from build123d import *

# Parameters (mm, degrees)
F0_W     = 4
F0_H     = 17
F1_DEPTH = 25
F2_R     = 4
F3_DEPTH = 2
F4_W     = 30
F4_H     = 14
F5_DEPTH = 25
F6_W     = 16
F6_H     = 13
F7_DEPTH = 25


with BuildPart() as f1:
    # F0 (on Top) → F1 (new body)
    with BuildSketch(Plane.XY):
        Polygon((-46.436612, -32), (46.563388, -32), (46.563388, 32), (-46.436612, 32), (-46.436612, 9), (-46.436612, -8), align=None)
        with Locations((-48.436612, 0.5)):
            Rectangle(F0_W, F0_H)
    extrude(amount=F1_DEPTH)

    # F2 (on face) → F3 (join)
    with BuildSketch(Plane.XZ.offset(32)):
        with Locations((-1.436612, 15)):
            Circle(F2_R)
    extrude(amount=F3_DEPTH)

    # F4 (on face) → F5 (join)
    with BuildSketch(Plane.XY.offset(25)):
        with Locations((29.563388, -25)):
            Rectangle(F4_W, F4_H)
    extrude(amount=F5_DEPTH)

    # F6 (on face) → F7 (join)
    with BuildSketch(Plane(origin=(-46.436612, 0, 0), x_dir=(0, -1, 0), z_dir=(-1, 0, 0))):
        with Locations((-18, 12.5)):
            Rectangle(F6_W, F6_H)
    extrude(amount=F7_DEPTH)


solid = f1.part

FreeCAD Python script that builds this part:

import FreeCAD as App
import Part
import Sketcher
from FreeCAD import Vector

doc = App.newDocument("Part")
body = doc.addObject("PartDesign::Body", "Body")

# Sketch on XY plane
sketch1 = body.newObject("Sketcher::SketchObject", "Sketch")
sketch1.AttachmentSupport = (doc.getObject("XY_Plane"), [""])
sketch1.MapMode = "FlatFace"
sketch1.addGeometry(Part.LineSegment(Vector(-46.4, -32, 0), Vector(46.6, -32, 0)), False)
sketch1.addGeometry(Part.LineSegment(Vector(46.6, -32, 0), Vector(46.6, 32, 0)), False)
sketch1.addGeometry(Part.LineSegment(Vector(46.6, 32, 0), Vector(-46.4, 32, 0)), False)
sketch1.addGeometry(Part.LineSegment(Vector(-46.4, 32, 0), Vector(-46.4, 9, 0)), False)
sketch1.addGeometry(Part.LineSegment(Vector(-46.4, 9, 0), Vector(-50.4, 9, 0)), False)
sketch1.addGeometry(Part.LineSegment(Vector(-50.4, 9, 0), Vector(-50.4, -8, 0)), False)
sketch1.addGeometry(Part.LineSegment(Vector(-50.4, -8, 0), Vector(-46.4, -8, 0)), False)
sketch1.addGeometry(Part.LineSegment(Vector(-46.4, -8, 0), Vector(-46.4, -32, 0)), False)
sketch1.addConstraint(Sketcher.Constraint("Coincident", 0, 2, 1, 1))
sketch1.addConstraint(Sketcher.Constraint("Coincident", 1, 2, 2, 1))
sketch1.addConstraint(Sketcher.Constraint("Coincident", 2, 2, 3, 1))
sketch1.addConstraint(Sketcher.Constraint("Coincident", 3, 2, 4, 1))
sketch1.addConstraint(Sketcher.Constraint("Coincident", 4, 2, 5, 1))
sketch1.addConstraint(Sketcher.Constraint("Coincident", 5, 2, 6, 1))
sketch1.addConstraint(Sketcher.Constraint("Coincident", 6, 2, 7, 1))
sketch1.addConstraint(Sketcher.Constraint("Coincident", 7, 2, 0, 1))
sketch1.addConstraint(Sketcher.Constraint("Horizontal", 0))
sketch1.addConstraint(Sketcher.Constraint("Vertical", 1))
sketch1.addConstraint(Sketcher.Constraint("Horizontal", 2))
sketch1.addConstraint(Sketcher.Constraint("Vertical", 3))
sketch1.addConstraint(Sketcher.Constraint("Horizontal", 4))
sketch1.addConstraint(Sketcher.Constraint("Vertical", 5))
sketch1.addConstraint(Sketcher.Constraint("Horizontal", 6))
sketch1.addConstraint(Sketcher.Constraint("Vertical", 7))
sketch1.addConstraint(Sketcher.Constraint("Symmetric", 2, 2, 7, 2, -1))
sketch1.addConstraint(Sketcher.Constraint("DistanceX", 0, 1, 0, 2, 93.0))
sketch1.addConstraint(Sketcher.Constraint("DistanceX", 4, 2, 4, 1, 4.0))
sketch1.addConstraint(Sketcher.Constraint("DistanceY", 1, 1, 1, 2, 64.0))
sketch1.addConstraint(Sketcher.Constraint("DistanceY", 3, 2, 3, 1, 23.0))
sketch1.addConstraint(Sketcher.Constraint("DistanceY", 5, 2, 5, 1, 17.0))
sketch1.addConstraint(Sketcher.Constraint("DistanceX", -1, 1, 0, 2, 46.563388))
pad1 = body.newObject("PartDesign::Pad", "Pad")
pad1.Profile = sketch1
pad1.Length = 25

# Sketch on XZ plane
sketch2 = body.newObject("Sketcher::SketchObject", "Sketch001")
sketch2.AttachmentSupport = (doc.getObject("XZ_Plane"), [""])
sketch2.MapMode = "FlatFace"
sketch2.AttachmentOffset = App.Placement(Vector(0, 0, 32), App.Rotation())
sketch2.addGeometry(Part.Circle(Vector(-1.4, 15, 0), Vector(0, 0, 1), 4), False)
sketch2.addConstraint(Sketcher.Constraint("Diameter", 0, 8.0))
sketch2.addConstraint(Sketcher.Constraint("DistanceY", -1, 1, 0, 3, 15.0))
sketch2.addConstraint(Sketcher.Constraint("DistanceX", 0, 3, -1, 1, 1.436612))
pad2 = body.newObject("PartDesign::Pad", "Pad001")
pad2.Profile = sketch2
pad2.Length = 2

# Sketch on XY plane
sketch3 = body.newObject("Sketcher::SketchObject", "Sketch002")
sketch3.AttachmentSupport = (doc.getObject("XY_Plane"), [""])
sketch3.MapMode = "FlatFace"
sketch3.AttachmentOffset = App.Placement(Vector(0, 0, 25), App.Rotation())
sketch3.addGeometry(Part.LineSegment(Vector(15, -18, 0), Vector(15, -32, 0)), False)
sketch3.addGeometry(Part.LineSegment(Vector(15, -32, 0), Vector(45, -32, 0)), False)
sketch3.addGeometry(Part.LineSegment(Vector(45, -32, 0), Vector(45, -18, 0)), False)
sketch3.addGeometry(Part.LineSegment(Vector(45, -18, 0), Vector(15, -18, 0)), False)
sketch3.addConstraint(Sketcher.Constraint("Coincident", 0, 2, 1, 1))
sketch3.addConstraint(Sketcher.Constraint("Coincident", 1, 2, 2, 1))
sketch3.addConstraint(Sketcher.Constraint("Coincident", 2, 2, 3, 1))
sketch3.addConstraint(Sketcher.Constraint("Coincident", 3, 2, 0, 1))
sketch3.addConstraint(Sketcher.Constraint("Vertical", 0))
sketch3.addConstraint(Sketcher.Constraint("Horizontal", 1))
sketch3.addConstraint(Sketcher.Constraint("Vertical", 2))
sketch3.addConstraint(Sketcher.Constraint("Horizontal", 3))
sketch3.addConstraint(Sketcher.Constraint("DistanceX", 1, 1, 1, 2, 30.0))
sketch3.addConstraint(Sketcher.Constraint("DistanceY", 0, 2, 0, 1, 14.0))
sketch3.addConstraint(Sketcher.Constraint("DistanceY", 0, 2, -1, 1, 32.0))
sketch3.addConstraint(Sketcher.Constraint("DistanceX", -1, 1, 1, 2, 44.563388))
pad3 = body.newObject("PartDesign::Pad", "Pad002")
pad3.Profile = sketch3
pad3.Length = 25

# Sketch on YZ plane
sketch4 = body.newObject("Sketcher::SketchObject", "Sketch003")
sketch4.AttachmentSupport = (doc.getObject("YZ_Plane"), [""])
sketch4.MapMode = "FlatFace"
sketch4.AttachmentOffset = App.Placement(Vector(0, 0, -46.436612), App.Rotation())
sketch4.addGeometry(Part.LineSegment(Vector(26, 19, 0), Vector(26, 6, 0)), False)
sketch4.addGeometry(Part.LineSegment(Vector(26, 6, 0), Vector(10, 6, 0)), False)
sketch4.addGeometry(Part.LineSegment(Vector(10, 6, 0), Vector(10, 19, 0)), False)
sketch4.addGeometry(Part.LineSegment(Vector(10, 19, 0), Vector(26, 19, 0)), False)
sketch4.addConstraint(Sketcher.Constraint("Coincident", 0, 2, 1, 1))
sketch4.addConstraint(Sketcher.Constraint("Coincident", 1, 2, 2, 1))
sketch4.addConstraint(Sketcher.Constraint("Coincident", 2, 2, 3, 1))
sketch4.addConstraint(Sketcher.Constraint("Coincident", 3, 2, 0, 1))
sketch4.addConstraint(Sketcher.Constraint("Vertical", 0))
sketch4.addConstraint(Sketcher.Constraint("Horizontal", 1))
sketch4.addConstraint(Sketcher.Constraint("Vertical", 2))
sketch4.addConstraint(Sketcher.Constraint("Horizontal", 3))
sketch4.addConstraint(Sketcher.Constraint("DistanceX", 1, 2, 1, 1, 16.0))
sketch4.addConstraint(Sketcher.Constraint("DistanceY", 0, 2, 0, 1, 13.0))
sketch4.addConstraint(Sketcher.Constraint("DistanceX", -1, 1, 0, 2, 26.0))
sketch4.addConstraint(Sketcher.Constraint("DistanceY", -1, 1, 0, 2, 6.0))
pad4 = body.newObject("PartDesign::Pad", "Pad003")
pad4.Profile = sketch4
pad4.Length = 25
pad4.Reversed = True

doc.recompute()
